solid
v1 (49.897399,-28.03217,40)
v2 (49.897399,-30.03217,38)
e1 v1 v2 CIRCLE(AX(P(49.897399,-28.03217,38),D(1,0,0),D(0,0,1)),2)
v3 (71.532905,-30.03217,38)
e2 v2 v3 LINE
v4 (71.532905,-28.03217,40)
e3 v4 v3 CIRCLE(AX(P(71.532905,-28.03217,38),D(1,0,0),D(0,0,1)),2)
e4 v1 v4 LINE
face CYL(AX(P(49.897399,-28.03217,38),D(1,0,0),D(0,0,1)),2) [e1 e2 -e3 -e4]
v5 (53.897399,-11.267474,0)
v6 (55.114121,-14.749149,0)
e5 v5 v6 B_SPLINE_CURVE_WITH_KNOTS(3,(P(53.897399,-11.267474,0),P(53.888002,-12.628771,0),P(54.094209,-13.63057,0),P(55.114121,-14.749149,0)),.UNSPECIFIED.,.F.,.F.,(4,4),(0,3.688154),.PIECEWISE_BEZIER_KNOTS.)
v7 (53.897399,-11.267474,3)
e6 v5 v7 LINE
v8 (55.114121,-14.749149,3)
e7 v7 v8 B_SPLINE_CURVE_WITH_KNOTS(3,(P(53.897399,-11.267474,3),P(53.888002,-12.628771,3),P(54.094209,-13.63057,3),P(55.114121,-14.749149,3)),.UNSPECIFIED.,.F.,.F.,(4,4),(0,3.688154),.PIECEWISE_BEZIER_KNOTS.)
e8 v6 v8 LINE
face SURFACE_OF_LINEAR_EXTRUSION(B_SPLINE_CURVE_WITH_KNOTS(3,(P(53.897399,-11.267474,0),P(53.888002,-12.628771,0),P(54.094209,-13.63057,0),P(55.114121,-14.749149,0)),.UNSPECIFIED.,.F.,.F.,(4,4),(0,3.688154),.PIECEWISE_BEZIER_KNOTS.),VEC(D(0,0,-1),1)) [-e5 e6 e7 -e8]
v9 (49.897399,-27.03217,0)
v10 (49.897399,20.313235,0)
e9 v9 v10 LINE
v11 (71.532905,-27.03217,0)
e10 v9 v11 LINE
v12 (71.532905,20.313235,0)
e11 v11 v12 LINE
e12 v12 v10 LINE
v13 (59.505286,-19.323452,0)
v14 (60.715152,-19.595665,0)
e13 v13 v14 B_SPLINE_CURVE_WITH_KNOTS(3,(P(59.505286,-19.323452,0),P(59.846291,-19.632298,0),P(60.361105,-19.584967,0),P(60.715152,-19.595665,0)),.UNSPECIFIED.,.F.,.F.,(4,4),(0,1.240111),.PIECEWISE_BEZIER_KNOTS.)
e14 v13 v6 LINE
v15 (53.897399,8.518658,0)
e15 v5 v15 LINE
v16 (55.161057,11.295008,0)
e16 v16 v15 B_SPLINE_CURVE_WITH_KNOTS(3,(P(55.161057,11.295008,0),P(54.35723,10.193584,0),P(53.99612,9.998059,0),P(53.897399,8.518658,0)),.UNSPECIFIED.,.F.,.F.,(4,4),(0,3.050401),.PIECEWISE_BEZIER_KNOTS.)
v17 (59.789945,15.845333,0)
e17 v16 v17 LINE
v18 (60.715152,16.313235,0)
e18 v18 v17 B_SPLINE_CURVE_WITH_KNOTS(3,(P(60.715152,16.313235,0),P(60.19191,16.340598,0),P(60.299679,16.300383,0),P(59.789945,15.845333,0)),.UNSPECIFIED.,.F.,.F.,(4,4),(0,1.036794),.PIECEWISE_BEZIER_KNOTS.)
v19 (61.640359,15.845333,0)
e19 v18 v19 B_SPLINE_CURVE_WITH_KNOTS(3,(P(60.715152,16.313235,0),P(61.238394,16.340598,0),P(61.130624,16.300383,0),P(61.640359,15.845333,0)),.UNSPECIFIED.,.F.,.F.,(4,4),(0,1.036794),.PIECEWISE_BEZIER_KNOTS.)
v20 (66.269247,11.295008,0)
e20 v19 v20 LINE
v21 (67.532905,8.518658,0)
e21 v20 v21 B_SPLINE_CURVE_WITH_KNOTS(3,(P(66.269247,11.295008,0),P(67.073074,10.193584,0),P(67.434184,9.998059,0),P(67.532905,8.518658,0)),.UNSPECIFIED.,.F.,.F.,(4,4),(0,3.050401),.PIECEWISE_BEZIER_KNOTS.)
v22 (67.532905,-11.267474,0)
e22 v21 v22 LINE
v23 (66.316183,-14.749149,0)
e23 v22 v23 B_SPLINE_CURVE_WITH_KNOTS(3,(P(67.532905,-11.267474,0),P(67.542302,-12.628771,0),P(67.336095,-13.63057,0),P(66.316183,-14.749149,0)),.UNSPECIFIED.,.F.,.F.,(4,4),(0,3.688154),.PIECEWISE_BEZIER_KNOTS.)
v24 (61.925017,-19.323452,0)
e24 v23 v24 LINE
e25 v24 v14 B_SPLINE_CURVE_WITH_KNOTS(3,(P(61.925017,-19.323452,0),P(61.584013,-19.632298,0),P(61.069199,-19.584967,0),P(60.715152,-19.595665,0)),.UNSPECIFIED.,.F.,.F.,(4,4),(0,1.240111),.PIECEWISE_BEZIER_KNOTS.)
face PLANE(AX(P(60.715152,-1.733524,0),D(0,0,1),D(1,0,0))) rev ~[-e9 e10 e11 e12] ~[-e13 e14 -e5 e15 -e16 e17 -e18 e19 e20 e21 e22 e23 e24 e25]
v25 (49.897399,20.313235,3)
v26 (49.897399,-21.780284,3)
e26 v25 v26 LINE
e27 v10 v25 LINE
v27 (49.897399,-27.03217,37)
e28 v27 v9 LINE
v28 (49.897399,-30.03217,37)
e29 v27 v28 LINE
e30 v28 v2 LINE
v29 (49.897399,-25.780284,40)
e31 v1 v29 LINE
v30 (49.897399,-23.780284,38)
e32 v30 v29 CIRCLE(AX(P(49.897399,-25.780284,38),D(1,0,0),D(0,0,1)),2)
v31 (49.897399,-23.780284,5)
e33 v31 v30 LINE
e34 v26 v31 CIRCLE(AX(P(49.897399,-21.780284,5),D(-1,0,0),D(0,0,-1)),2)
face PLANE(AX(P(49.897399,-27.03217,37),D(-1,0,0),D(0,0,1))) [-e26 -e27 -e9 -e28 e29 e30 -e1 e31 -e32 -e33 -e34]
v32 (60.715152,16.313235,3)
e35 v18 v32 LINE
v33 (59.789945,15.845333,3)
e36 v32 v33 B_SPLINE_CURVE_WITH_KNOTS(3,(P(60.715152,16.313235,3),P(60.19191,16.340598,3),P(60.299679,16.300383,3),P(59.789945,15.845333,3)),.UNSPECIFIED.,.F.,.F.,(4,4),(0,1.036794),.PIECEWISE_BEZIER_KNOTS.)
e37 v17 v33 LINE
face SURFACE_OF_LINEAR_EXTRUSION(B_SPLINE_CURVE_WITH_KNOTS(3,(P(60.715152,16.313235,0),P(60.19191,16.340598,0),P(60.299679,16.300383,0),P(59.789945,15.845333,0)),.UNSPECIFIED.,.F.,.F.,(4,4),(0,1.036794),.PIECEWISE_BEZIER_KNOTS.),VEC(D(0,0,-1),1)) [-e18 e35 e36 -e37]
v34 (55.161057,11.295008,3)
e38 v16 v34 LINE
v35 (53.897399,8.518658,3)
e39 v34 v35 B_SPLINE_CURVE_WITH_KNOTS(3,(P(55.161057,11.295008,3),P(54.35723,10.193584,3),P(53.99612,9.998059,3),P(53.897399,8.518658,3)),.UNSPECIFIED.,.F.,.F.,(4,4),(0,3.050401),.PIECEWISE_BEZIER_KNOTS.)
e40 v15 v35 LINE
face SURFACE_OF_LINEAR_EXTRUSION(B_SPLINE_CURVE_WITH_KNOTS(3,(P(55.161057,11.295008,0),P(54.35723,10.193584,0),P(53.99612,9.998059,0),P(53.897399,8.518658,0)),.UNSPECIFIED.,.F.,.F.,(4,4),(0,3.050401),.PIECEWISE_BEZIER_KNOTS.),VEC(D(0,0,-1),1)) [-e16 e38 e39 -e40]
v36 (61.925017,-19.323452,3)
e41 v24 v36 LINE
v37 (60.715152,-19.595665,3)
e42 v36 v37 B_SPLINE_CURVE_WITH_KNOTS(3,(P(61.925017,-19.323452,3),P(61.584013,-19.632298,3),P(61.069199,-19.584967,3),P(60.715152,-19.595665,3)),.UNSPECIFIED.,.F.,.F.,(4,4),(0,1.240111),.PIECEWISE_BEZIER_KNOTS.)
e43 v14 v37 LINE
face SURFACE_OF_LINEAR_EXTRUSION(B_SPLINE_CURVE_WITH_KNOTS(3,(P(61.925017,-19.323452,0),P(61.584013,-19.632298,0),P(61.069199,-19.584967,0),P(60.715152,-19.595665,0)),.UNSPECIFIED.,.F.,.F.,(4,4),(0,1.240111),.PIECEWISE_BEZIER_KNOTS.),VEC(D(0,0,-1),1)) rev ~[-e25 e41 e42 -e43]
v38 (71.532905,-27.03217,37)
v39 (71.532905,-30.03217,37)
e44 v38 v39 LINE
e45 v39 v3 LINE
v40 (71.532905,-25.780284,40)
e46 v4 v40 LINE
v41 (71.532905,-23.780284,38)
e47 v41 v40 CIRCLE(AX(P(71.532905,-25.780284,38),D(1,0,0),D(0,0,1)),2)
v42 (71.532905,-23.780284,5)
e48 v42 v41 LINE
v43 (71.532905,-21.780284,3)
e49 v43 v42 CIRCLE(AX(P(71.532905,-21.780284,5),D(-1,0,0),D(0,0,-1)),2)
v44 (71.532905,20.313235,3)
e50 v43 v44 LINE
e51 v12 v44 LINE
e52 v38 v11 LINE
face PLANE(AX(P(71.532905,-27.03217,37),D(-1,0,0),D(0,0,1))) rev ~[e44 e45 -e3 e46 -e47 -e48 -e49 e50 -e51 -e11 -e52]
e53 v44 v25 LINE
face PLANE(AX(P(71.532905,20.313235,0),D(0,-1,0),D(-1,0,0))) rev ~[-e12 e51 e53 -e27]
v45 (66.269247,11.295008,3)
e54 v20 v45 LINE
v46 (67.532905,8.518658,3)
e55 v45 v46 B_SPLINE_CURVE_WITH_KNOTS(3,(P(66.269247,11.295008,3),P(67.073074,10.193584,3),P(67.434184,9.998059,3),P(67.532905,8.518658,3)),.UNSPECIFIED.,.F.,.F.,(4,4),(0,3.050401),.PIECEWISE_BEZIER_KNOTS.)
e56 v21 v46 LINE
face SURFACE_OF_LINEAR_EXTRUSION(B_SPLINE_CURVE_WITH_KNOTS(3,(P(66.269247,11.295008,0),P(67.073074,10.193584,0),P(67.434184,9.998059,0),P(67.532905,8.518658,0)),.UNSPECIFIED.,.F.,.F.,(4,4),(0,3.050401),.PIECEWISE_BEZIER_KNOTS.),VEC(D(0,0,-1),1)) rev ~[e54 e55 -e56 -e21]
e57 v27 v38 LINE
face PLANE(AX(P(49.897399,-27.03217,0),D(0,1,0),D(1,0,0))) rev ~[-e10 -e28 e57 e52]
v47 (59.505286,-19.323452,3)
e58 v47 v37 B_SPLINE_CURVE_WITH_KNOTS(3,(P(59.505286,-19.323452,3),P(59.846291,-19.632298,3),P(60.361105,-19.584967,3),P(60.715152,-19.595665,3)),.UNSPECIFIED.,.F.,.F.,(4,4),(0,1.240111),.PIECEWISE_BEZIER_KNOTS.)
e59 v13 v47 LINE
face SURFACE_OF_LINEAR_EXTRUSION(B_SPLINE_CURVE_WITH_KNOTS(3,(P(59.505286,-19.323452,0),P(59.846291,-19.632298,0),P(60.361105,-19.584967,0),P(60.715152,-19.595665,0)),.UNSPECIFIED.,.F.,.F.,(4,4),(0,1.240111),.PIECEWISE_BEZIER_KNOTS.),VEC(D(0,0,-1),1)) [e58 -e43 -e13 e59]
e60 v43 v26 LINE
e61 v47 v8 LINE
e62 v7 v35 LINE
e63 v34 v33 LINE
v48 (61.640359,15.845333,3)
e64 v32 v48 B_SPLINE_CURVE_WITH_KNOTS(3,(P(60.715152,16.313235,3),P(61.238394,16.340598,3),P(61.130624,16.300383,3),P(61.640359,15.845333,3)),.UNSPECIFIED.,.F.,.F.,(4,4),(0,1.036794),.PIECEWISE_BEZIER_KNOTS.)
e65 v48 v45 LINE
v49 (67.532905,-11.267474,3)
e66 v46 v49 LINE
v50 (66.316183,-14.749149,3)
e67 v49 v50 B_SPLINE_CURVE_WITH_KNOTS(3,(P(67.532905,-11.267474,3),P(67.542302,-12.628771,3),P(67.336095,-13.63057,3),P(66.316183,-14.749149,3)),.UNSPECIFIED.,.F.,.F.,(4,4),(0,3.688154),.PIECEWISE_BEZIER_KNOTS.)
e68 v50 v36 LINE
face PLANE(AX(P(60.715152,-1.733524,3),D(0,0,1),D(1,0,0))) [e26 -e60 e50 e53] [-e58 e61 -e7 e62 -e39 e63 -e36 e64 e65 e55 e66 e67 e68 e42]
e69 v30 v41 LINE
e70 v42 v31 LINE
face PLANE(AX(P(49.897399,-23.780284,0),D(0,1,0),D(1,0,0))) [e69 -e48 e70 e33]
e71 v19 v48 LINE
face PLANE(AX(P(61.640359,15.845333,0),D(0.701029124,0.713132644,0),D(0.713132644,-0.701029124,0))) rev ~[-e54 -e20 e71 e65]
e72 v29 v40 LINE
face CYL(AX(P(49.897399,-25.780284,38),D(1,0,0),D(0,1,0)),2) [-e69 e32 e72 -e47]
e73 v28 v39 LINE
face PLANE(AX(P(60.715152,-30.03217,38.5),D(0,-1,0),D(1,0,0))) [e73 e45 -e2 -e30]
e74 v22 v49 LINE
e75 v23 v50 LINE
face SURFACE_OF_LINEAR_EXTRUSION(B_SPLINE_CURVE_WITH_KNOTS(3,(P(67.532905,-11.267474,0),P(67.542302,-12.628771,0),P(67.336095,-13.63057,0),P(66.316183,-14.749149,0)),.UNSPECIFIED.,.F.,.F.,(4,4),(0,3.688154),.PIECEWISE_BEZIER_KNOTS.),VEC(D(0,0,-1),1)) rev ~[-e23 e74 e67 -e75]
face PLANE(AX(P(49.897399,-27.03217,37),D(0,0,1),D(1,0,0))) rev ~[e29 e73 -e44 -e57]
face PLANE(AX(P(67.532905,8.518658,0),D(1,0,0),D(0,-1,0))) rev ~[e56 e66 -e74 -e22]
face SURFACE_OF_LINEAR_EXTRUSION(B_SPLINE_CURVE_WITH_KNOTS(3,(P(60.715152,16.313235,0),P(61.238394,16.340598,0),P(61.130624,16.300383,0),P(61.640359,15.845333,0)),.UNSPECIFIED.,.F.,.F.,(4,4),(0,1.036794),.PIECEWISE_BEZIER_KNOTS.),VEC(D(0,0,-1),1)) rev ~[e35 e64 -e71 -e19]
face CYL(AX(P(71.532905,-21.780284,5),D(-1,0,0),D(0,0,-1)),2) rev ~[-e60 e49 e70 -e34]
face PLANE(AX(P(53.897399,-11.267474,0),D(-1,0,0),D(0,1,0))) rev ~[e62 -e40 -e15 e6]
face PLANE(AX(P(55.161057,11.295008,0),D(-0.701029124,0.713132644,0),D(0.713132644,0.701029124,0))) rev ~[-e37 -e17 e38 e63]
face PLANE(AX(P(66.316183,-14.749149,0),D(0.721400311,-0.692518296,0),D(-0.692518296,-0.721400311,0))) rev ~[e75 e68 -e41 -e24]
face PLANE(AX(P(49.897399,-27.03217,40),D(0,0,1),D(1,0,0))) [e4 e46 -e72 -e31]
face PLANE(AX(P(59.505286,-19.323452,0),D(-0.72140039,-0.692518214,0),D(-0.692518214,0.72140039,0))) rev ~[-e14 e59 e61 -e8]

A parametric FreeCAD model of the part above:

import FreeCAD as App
import Part
import Sketcher
from FreeCAD import Vector


def edges_at(feature, points):
    """Names of the edges that pass closest to the given points."""
    edges = feature.Shape.Edges
    near = lambda p: min(range(len(edges)), key=lambda i: edges[i].distToShape(Part.Vertex(*p))[0])
    return sorted({f"Edge{near(p) + 1}" for p in points})


def add_polygon(sketch, points):
    """Adds a closed chain of lines whose ends are joined by coincident constraints."""
    first, n = sketch.GeometryCount, len(points)
    for a, b in zip(points, points[1:] + points[:1]):
        sketch.addGeometry(Part.LineSegment(App.Vector(*a, 0), App.Vector(*b, 0)), False)
    for i in range(n):
        sketch.addConstraint(Sketcher.Constraint("Coincident", first + i, 2, first + (i + 1) % n, 1))

doc = App.newDocument("Part")
body = doc.addObject("PartDesign::Body", "Body")

sketch1 = body.newObject("Sketcher::SketchObject", "Sketch")
sketch1.AttachmentSupport = (doc.getObject("XY_Plane"), [""])
sketch1.MapMode = "FlatFace"
add_polygon(sketch1, [(71.532905, 20.313235), (49.897399, 20.313235), (49.897399, -27.03217), (71.532905, -27.03217)])
sketch1.addGeometry(Part.BSplineCurve([Vector(60.715152, 16.313235, 0), Vector(60.19191, 16.340598, 0), Vector(60.299679, 16.300383, 0), Vector(59.789945, 15.845333, 0)], [4, 4], [0, 1.036794], False, 3, [1, 1, 1, 1], False), False)
sketch1.addGeometry(Part.BSplineCurve([Vector(60.715152, 16.313235, 0), Vector(61.238394, 16.340598, 0), Vector(61.130624, 16.300383, 0), Vector(61.640359, 15.845333, 0)], [4, 4], [0, 1.036794], False, 3, [1, 1, 1, 1], False), False)
sketch1.addGeometry(Part.LineSegment(Vector(61.640359, 15.845333, 0), Vector(66.269247, 11.295008, 0)), False)
sketch1.addGeometry(Part.BSplineCurve([Vector(66.269247, 11.295008, 0), Vector(67.073074, 10.193584, 0), Vector(67.434184, 9.998059, 0), Vector(67.532905, 8.518658, 0)], [4, 4], [0, 3.050401], False, 3, [1, 1, 1, 1], False), False)
sketch1.addGeometry(Part.LineSegment(Vector(67.532905, 8.518658, 0), Vector(67.532905, -11.267474, 0)), False)
sketch1.addGeometry(Part.BSplineCurve([Vector(67.532905, -11.267474, 0), Vector(67.542302, -12.628771, 0), Vector(67.336095, -13.63057, 0), Vector(66.316183, -14.749149, 0)], [4, 4], [0, 3.688154], False, 3, [1, 1, 1, 1], False), False)
sketch1.addGeometry(Part.LineSegment(Vector(66.316183, -14.749149, 0), Vector(61.925017, -19.323452, 0)), False)
sketch1.addGeometry(Part.BSplineCurve([Vector(61.925017, -19.323452, 0), Vector(61.584013, -19.632298, 0), Vector(61.069199, -19.584967, 0), Vector(60.715152, -19.595665, 0)], [4, 4], [0, 1.240111], False, 3, [1, 1, 1, 1], False), False)
sketch1.addGeometry(Part.BSplineCurve([Vector(59.505286, -19.323452, 0), Vector(59.846291, -19.632298, 0), Vector(60.361105, -19.584967, 0), Vector(60.715152, -19.595665, 0)], [4, 4], [0, 1.240111], False, 3, [1, 1, 1, 1], False), False)
sketch1.addGeometry(Part.LineSegment(Vector(59.505286, -19.323452, 0), Vector(55.114121, -14.749149, 0)), False)
sketch1.addGeometry(Part.BSplineCurve([Vector(53.897399, -11.267474, 0), Vector(53.888002, -12.628771, 0), Vector(54.094209, -13.63057, 0), Vector(55.114121, -14.749149, 0)], [4, 4], [0, 3.688154], False, 3, [1, 1, 1, 1], False), False)
sketch1.addGeometry(Part.LineSegment(Vector(53.897399, -11.267474, 0), Vector(53.897399, 8.518658, 0)), False)
sketch1.addGeometry(Part.BSplineCurve([Vector(55.161057, 11.295008, 0), Vector(54.35723, 10.193584, 0), Vector(53.99612, 9.998059, 0), Vector(53.897399, 8.518658, 0)], [4, 4], [0, 3.050401], False, 3, [1, 1, 1, 1], False), False)
sketch1.addGeometry(Part.LineSegment(Vector(55.161057, 11.295008, 0), Vector(59.789945, 15.845333, 0)), False)
sketch1.addConstraint(Sketcher.Constraint("Block", 4))
sketch1.addConstraint(Sketcher.Constraint("Block", 5))
sketch1.addConstraint(Sketcher.Constraint("Block", 7))
sketch1.addConstraint(Sketcher.Constraint("Block", 9))
sketch1.addConstraint(Sketcher.Constraint("Block", 11))
sketch1.addConstraint(Sketcher.Constraint("Block", 12))
sketch1.addConstraint(Sketcher.Constraint("Block", 14))
sketch1.addConstraint(Sketcher.Constraint("Block", 16))
sketch1.addConstraint(Sketcher.Constraint("Coincident", 5, 2, 6, 1))
sketch1.addConstraint(Sketcher.Constraint("Coincident", 6, 2, 7, 1))
sketch1.addConstraint(Sketcher.Constraint("Coincident", 7, 2, 8, 1))
sketch1.addConstraint(Sketcher.Constraint("Coincident", 8, 2, 9, 1))
sketch1.addConstraint(Sketcher.Constraint("Coincident", 9, 2, 10, 1))
sketch1.addConstraint(Sketcher.Constraint("Coincident", 10, 2, 11, 1))
sketch1.addConstraint(Sketcher.Constraint("Coincident", 12, 1, 13, 1))
sketch1.addConstraint(Sketcher.Constraint("Coincident", 13, 2, 14, 2))
sketch1.addConstraint(Sketcher.Constraint("Coincident", 14, 1, 15, 1))
sketch1.addConstraint(Sketcher.Constraint("Coincident", 15, 2, 16, 2))
sketch1.addConstraint(Sketcher.Constraint("Coincident", 16, 1, 17, 1))
sketch1.addConstraint(Sketcher.Constraint("Coincident", 17, 2, 4, 2))
sketch1.addConstraint(Sketcher.Constraint("Horizontal", 0))
sketch1.addConstraint(Sketcher.Constraint("Vertical", 1))
sketch1.addConstraint(Sketcher.Constraint("Horizontal", 2))
sketch1.addConstraint(Sketcher.Constraint("Vertical", 3))
sketch1.addConstraint(Sketcher.Constraint("DistanceX", 8, 2, 2, 2, 4.0))
sketch1.addConstraint(Sketcher.Constraint("DistanceX", 0, 2, 15, 2, 4.0))
sketch1.addConstraint(Sketcher.Constraint("DistanceY", 17, 2, 0, 2, 4.467902))
sketch1.addConstraint(Sketcher.Constraint("DistanceY", 1, 2, 1, 1, 47.345405))
pad1 = body.newObject("PartDesign::Pad", "Pad")
pad1.Profile = sketch1
pad1.Length = 3

sketch2 = body.newObject("Sketcher::SketchObject", "Sketch001")
sketch2.AttachmentSupport = (doc.getObject("XY_Plane"), [""])
sketch2.MapMode = "FlatFace"
add_polygon(sketch2, [(49.9, -23.8), (49.9, -27), (71.5, -27), (71.5, -23.8)])
sketch2.addConstraint(Sketcher.Constraint("Vertical", 0))
sketch2.addConstraint(Sketcher.Constraint("Horizontal", 1))
sketch2.addConstraint(Sketcher.Constraint("Vertical", 2))
sketch2.addConstraint(Sketcher.Constraint("Horizontal", 3))
sketch2.addConstraint(Sketcher.Constraint("DistanceX", -1, 1, 0, 2, 49.897399))
sketch2.addConstraint(Sketcher.Constraint("DistanceX", 1, 1, 1, 2, 21.635506))
sketch2.addConstraint(Sketcher.Constraint("DistanceY", 0, 2, 0, 1, 3.251886))
sketch2.addConstraint(Sketcher.Constraint("DistanceY", 0, 2, -1, 1, 27.03217))
pad2 = body.newObject("PartDesign::Pad", "Pad001")
pad2.Profile = sketch2
pad2.Length = 40

sketch3 = body.newObject("Sketcher::SketchObject", "Sketch002")
sketch3.AttachmentSupport = (doc.getObject("XZ_Plane"), [""])
sketch3.MapMode = "FlatFace"
sketch3.AttachmentOffset = App.Placement(Vector(0, 0, 27.03217), App.Rotation())
add_polygon(sketch3, [(49.9, 40), (49.9, 37), (71.5, 37), (71.5, 40)])
sketch3.addConstraint(Sketcher.Constraint("Vertical", 0))
sketch3.addConstraint(Sketcher.Constraint("Horizontal", 1))
sketch3.addConstraint(Sketcher.Constraint("Vertical", 2))
sketch3.addConstraint(Sketcher.Constraint("Horizontal", 3))
sketch3.addConstraint(Sketcher.Constraint("DistanceY", 0, 2, 0, 1, 3.0))
sketch3.addConstraint(Sketcher.Constraint("DistanceY", -1, 1, 0, 2, 37.0))
sketch3.addConstraint(Sketcher.Constraint("DistanceX", -1, 1, 0, 2, 49.897399))
sketch3.addConstraint(Sketcher.Constraint("DistanceX", 1, 1, 1, 2, 21.635506))
pad3 = body.newObject("PartDesign::Pad", "Pad002")
pad3.Profile = sketch3
pad3.Length = 3
doc.recompute()

fillet = body.newObject("PartDesign::Fillet", "Fillet")
fillet.Base = (pad3, edges_at(pad3, [(60.715, -30.032, 40), (60.715, -23.78, 40), (60.715, -23.78, 3)]))
fillet.Radius = 2

doc.recompute()
